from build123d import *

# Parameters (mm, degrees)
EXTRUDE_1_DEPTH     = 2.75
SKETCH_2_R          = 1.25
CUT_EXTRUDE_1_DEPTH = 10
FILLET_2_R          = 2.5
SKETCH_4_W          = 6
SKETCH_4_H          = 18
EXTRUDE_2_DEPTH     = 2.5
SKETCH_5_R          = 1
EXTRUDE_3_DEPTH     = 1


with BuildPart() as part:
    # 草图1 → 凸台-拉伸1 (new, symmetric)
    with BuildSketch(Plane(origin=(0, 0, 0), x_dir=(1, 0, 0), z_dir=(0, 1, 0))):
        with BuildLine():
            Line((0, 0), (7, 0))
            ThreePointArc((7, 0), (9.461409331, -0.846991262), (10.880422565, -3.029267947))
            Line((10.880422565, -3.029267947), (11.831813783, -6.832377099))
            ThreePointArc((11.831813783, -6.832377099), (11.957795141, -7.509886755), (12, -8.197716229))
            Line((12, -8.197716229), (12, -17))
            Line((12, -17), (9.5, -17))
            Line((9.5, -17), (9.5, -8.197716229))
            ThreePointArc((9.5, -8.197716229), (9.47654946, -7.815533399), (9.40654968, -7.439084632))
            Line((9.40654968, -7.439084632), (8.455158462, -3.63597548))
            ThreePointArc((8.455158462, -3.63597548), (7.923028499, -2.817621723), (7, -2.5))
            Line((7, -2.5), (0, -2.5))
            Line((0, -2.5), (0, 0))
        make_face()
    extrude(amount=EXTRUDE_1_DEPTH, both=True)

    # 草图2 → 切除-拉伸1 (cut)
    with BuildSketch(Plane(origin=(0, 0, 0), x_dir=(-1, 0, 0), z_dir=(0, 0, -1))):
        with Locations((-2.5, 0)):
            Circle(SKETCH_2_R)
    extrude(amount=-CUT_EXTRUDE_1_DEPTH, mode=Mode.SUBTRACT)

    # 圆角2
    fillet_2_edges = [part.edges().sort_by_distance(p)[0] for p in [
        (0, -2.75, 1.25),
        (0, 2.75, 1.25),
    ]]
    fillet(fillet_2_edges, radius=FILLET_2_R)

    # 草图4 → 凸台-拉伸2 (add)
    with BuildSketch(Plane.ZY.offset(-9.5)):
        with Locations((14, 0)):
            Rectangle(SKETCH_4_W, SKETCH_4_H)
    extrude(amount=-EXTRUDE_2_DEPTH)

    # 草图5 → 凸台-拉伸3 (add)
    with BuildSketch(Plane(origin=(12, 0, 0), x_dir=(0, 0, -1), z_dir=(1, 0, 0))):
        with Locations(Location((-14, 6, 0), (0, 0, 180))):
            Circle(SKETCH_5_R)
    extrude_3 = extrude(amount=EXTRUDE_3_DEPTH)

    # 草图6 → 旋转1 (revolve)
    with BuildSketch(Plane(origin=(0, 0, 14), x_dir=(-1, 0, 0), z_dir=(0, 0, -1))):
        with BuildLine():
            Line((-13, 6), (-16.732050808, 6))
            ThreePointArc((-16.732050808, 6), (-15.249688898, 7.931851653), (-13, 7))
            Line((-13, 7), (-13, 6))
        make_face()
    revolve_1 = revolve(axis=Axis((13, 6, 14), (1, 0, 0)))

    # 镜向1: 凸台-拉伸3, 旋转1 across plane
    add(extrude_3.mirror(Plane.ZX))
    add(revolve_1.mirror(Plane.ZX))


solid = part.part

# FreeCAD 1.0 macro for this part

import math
import FreeCAD as App
import Part
import Sketcher
Q = App.Units.Quantity


def edges_at(feature, points):
    """Names of the edges that pass closest to the given points."""
    edges = feature.Shape.Edges
    near = lambda p: min(range(len(edges)), key=lambda i: edges[i].distToShape(Part.Vertex(*p))[0])
    return sorted({f"Edge{near(p) + 1}" for p in points})


def add_polygon(sketch, points):
    """Adds a closed chain of lines whose ends are joined by coincident constraints."""
    first, n = sketch.GeometryCount, len(points)
    for a, b in zip(points, points[1:] + points[:1]):
        sketch.addGeometry(Part.LineSegment(App.Vector(*a, 0), App.Vector(*b, 0)), False)
    for i in range(n):
        sketch.addConstraint(Sketcher.Constraint("Coincident", first + i, 2, first + (i + 1) % n, 1))

doc = App.newDocument("Part")
body = doc.addObject("PartDesign::Body", "Body")

sketch1 = body.newObject("Sketcher::SketchObject", "Sketch")
sketch1.AttachmentSupport = (doc.getObject("XZ_Plane"), [""])
sketch1.MapMode = "FlatFace"
sketch1.addGeometry(Part.LineSegment(App.Vector(7, 0, 0), App.Vector(0, 0, 0)), False)
sketch1.addGeometry(Part.LineSegment(App.Vector(0, 0, 0), App.Vector(0, 2.5, 0)), False)
sketch1.addGeometry(Part.LineSegment(App.Vector(0, 2.5, 0), App.Vector(7, 2.5, 0)), False)
sketch1.addGeometry(Part.ArcOfCircle(Part.Circle(App.Vector(7, 4, 0), App.Vector(0, 0, 1), 1.5), math.radians(-90), math.radians(-14)), False)
sketch1.addGeometry(Part.LineSegment(App.Vector(8.5, 3.6, 0), App.Vector(9.4, 7.4, 0)), False)
sketch1.addGeometry(Part.ArcOfCircle(Part.Circle(App.Vector(6.4, 8.2, 0), App.Vector(0, 0, 1), 3.1), math.radians(-14.04), math.radians(0)), False)
sketch1.addGeometry(Part.LineSegment(App.Vector(9.5, 8.2, 0), App.Vector(9.5, 17, 0)), False)
sketch1.addGeometry(Part.LineSegment(App.Vector(9.5, 17, 0), App.Vector(12, 17, 0)), False)
sketch1.addGeometry(Part.LineSegment(App.Vector(12, 17, 0), App.Vector(12, 8.2, 0)), False)
sketch1.addGeometry(Part.ArcOfCircle(Part.Circle(App.Vector(6.4, 8.2, 0), App.Vector(0, 0, 1), 5.6), math.radians(-14.04), math.radians(0)), False)
sketch1.addGeometry(Part.LineSegment(App.Vector(11.8, 6.8, 0), App.Vector(10.9, 3, 0)), False)
sketch1.addGeometry(Part.ArcOfCircle(Part.Circle(App.Vector(7, 4, 0), App.Vector(0, 0, 1), 4), math.radians(-90), math.radians(-14)), False)
sketch1.addConstraint(Sketcher.Constraint("Coincident", 0, 2, 1, 1))
sketch1.addConstraint(Sketcher.Constraint("Coincident", 1, 2, 2, 1))
sketch1.addConstraint(Sketcher.Constraint("Tangent", 2, 2, 3, 1))
sketch1.addConstraint(Sketcher.Constraint("Tangent", 3, 2, 4, 1))
sketch1.addConstraint(Sketcher.Constraint("Tangent", 4, 2, 5, 1))
sketch1.addConstraint(Sketcher.Constraint("Tangent", 5, 2, 6, 1))
sketch1.addConstraint(Sketcher.Constraint("Coincident", 6, 2, 7, 1))
sketch1.addConstraint(Sketcher.Constraint("Coincident", 7, 2, 8, 1))
sketch1.addConstraint(Sketcher.Constraint("Tangent", 8, 2, 9, 2))
sketch1.addConstraint(Sketcher.Constraint("Tangent", 9, 1, 10, 1))
sketch1.addConstraint(Sketcher.Constraint("Tangent", 10, 2, 11, 2))
sketch1.addConstraint(Sketcher.Constraint("Tangent", 11, 1, 0, 1))
sketch1.addConstraint(Sketcher.Constraint("Horizontal", 0))
sketch1.addConstraint(Sketcher.Constraint("Vertical", 1))
sketch1.addConstraint(Sketcher.Constraint("Horizontal", 2))
sketch1.addConstraint(Sketcher.Constraint("Vertical", 6))
sketch1.addConstraint(Sketcher.Constraint("Horizontal", 7))
sketch1.addConstraint(Sketcher.Constraint("Vertical", 8))
sketch1.addConstraint(Sketcher.Constraint("Coincident", 0, 2, -1, 1))
sketch1.addConstraint(Sketcher.Constraint("Coincident", 9, 3, 5, 3))
sketch1.addConstraint(Sketcher.Constraint("Coincident", 11, 3, 3, 3))
sketch1.addConstraint(Sketcher.Constraint("Parallel", 4, 10))
sketch1.addConstraint(Sketcher.Constraint("Radius", 11, Q("4 mm")))
sketch1.addConstraint(Sketcher.Constraint("Radius", 3, Q("1.5 mm")))
sketch1.addConstraint(Sketcher.Constraint("DistanceX", 0, 2, 0, 1, Q("7 mm")))
sketch1.addConstraint(Sketcher.Constraint("DistanceY", -1, 1, 6, 2, Q("17 mm")))
sketch1.addConstraint(Sketcher.Constraint("DistanceX", -1, 1, 7, 2, Q("12 mm")))
sketch1.addConstraint(Sketcher.Constraint("Radius", 5, Q("3.126019 mm")))
sketch1.addConstraint(Sketcher.Constraint("DistanceY", 3, 2, 9, 1, Q("3.196402 mm")))
pad1 = body.newObject("PartDesign::Pad", "Pad")
pad1.Profile = sketch1
pad1.Length = 5.5
pad1.Midplane = True

sketch2 = body.newObject("Sketcher::SketchObject", "Sketch001")
sketch2.AttachmentSupport = (doc.getObject("XY_Plane"), [""])
sketch2.MapMode = "FlatFace"
sketch2.addGeometry(Part.Circle(App.Vector(2.5, 0, 0), App.Vector(0, 0, 1), 1.2), False)
sketch2.addConstraint(Sketcher.Constraint("PointOnObject", 0, 3, -1))
sketch2.addConstraint(Sketcher.Constraint("Diameter", 0, Q("2.5 mm")))
sketch2.addConstraint(Sketcher.Constraint("DistanceX", -1, 1, 0, 3, Q("2.5 mm")))
pocket1 = body.newObject("PartDesign::Pocket", "Pocket")
pocket1.Profile = sketch2
pocket1.Length = 10
pocket1.Reversed = True
doc.recompute()

fillet = body.newObject("PartDesign::Fillet", "Fillet")
fillet.Base = (pocket1, edges_at(pocket1, [(0, -2.75, 1.25), (0, 2.75, 1.25)]))
fillet.Radius = 2.5

sketch3 = body.newObject("Sketcher::SketchObject", "Sketch002")
sketch3.AttachmentSupport = (doc.getObject("YZ_Plane"), [""])
sketch3.MapMode = "FlatFace"
sketch3.AttachmentOffset = App.Placement(App.Vector(0, 0, 9.5), App.Rotation())
add_polygon(sketch3, [(9, 11), (-9, 11), (-9, 17), (9, 17)])
sketch3.addConstraint(Sketcher.Constraint("Horizontal", 0))
sketch3.addConstraint(Sketcher.Constraint("Vertical", 1))
sketch3.addConstraint(Sketcher.Constraint("Horizontal", 2))
sketch3.addConstraint(Sketcher.Constraint("Vertical", 3))
sketch3.addConstraint(Sketcher.Constraint("DistanceX", 0, 2, 0, 1, Q("18 mm")))
sketch3.addConstraint(Sketcher.Constraint("DistanceY", 1, 1, 1, 2, Q("6 mm")))
sketch3.addConstraint(Sketcher.Constraint("DistanceX", 0, 2, -1, 1, Q("9 mm")))
sketch3.addConstraint(Sketcher.Constraint("DistanceY", -1, 1, 0, 2, Q("11 mm")))
pad2 = body.newObject("PartDesign::Pad", "Pad001")
pad2.Profile = sketch3
pad2.Length = 2.5

sketch4 = body.newObject("Sketcher::SketchObject", "Sketch003")
sketch4.AttachmentSupport = (doc.getObject("YZ_Plane"), [""])
sketch4.MapMode = "FlatFace"
sketch4.AttachmentOffset = App.Placement(App.Vector(0, 0, 12), App.Rotation())
sketch4.addGeometry(Part.Circle(App.Vector(6, 14, 0), App.Vector(0, 0, 1), 1), False)
sketch4.addConstraint(Sketcher.Constraint("Diameter", 0, Q("2 mm")))
sketch4.addConstraint(Sketcher.Constraint("DistanceX", -1, 1, 0, 3, Q("6 mm")))
sketch4.addConstraint(Sketcher.Constraint("DistanceY", -1, 1, 0, 3, Q("14 mm")))
pad3 = body.newObject("PartDesign::Pad", "Pad002")
pad3.Profile = sketch4
pad3.Length = 1

sketch5 = body.newObject("Sketcher::SketchObject", "Sketch004")
sketch5.AttachmentSupport = (doc.getObject("XY_Plane"), [""])
sketch5.MapMode = "FlatFace"
sketch5.AttachmentOffset = App.Placement(App.Vector(0, 0, 14), App.Rotation())
sketch5.addGeometry(Part.LineSegment(App.Vector(16.7, 6, 0), App.Vector(13, 6, 0)), False)
sketch5.addGeometry(Part.LineSegment(App.Vector(13, 6, 0), App.Vector(13, 7, 0)), False)
sketch5.addGeometry(Part.ArcOfCircle(Part.Circle(App.Vector(14.7, 6, 0), App.Vector(0, 0, 1), 2), math.radians(0), math.radians(150)), False)
sketch5.addGeometry(Part.LineSegment(App.Vector(13, 6, 0), App.Vector(16.7, 6, 0)), True)
sketch5.addConstraint(Sketcher.Constraint("Coincident", 0, 2, 1, 1))
sketch5.addConstraint(Sketcher.Constraint("Coincident", 1, 2, 2, 2))
sketch5.addConstraint(Sketcher.Constraint("Coincident", 2, 1, 0, 1))
sketch5.addConstraint(Sketcher.Constraint("Horizontal", 0))
sketch5.addConstraint(Sketcher.Constraint("Vertical", 1))
sketch5.addConstraint(Sketcher.Constraint("Horizontal", 3))
sketch5.addConstraint(Sketcher.Constraint("Coincident", 3, 1, 0, 2))
sketch5.addConstraint(Sketcher.Constraint("Horizontal", 2, 3, 0, 2))
sketch5.addConstraint(Sketcher.Constraint("Equal", 0, 3))
sketch5.addConstraint(Sketcher.Constraint("Radius", 2, Q("2 mm")))
sketch5.addConstraint(Sketcher.Constraint("DistanceY", 1, 1, 1, 2, Q("1 mm")))
sketch5.addConstraint(Sketcher.Constraint("DistanceY", -1, 1, 2, 3, Q("6 mm")))
sketch5.addConstraint(Sketcher.Constraint("DistanceX", -1, 1, 0, 2, Q("13 mm")))
revolution = body.newObject("PartDesign::Revolution", "Revolution")
revolution.Profile = sketch5
revolution.ReferenceAxis = (sketch5, ["Axis0"])
revolution.Angle = 360
doc.recompute()

mirrored = body.newObject("PartDesign::Mirrored", "Mirrored")
mirrored.Originals = [pad3, revolution]
mirrored.MirrorPlane = (doc.getObject("XZ_Plane"), [""])
body.Tip = mirrored

doc.recompute()
